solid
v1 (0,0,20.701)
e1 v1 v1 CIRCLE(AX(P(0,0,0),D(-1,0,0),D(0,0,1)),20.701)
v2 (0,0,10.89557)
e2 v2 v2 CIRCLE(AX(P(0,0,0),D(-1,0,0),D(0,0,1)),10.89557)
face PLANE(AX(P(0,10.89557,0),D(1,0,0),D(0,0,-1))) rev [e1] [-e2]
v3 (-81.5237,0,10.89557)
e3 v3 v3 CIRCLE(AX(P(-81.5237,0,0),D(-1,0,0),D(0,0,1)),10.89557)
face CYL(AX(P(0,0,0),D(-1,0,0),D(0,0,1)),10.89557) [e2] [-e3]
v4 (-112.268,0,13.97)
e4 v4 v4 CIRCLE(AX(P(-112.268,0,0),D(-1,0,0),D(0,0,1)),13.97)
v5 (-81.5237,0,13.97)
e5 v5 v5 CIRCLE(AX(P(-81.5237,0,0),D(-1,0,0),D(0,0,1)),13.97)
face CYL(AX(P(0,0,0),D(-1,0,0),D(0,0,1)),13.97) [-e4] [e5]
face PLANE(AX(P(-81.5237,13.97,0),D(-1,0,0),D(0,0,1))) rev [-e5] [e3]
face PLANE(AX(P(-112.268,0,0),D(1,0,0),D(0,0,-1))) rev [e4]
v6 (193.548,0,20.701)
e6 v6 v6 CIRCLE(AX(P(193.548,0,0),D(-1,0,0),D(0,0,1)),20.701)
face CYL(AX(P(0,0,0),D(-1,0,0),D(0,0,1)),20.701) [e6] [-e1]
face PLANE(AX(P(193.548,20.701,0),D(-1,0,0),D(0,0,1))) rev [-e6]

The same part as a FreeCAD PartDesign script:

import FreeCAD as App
import Part
import Sketcher
from FreeCAD import Vector
Q = App.Units.Quantity

doc = App.newDocument("Part")
body = doc.addObject("PartDesign::Body", "Body")

sketch1 = body.newObject("Sketcher::SketchObject", "Sketch")
sketch1.AttachmentSupport = (doc.getObject("XY_Plane"), [""])
sketch1.MapMode = "FlatFace"
sketch1.addGeometry([
    Part.LineSegment(Vector(-112.268, 0, 0), Vector(193.548, 0, 0)),
    Part.LineSegment(Vector(193.548, 0, 0), Vector(193.548, 20.701, 0)),
    Part.LineSegment(Vector(193.548, 20.701, 0), Vector(0, 20.701, 0)),
    Part.LineSegment(Vector(0, 20.701, 0), Vector(0, 10.89557, 0)),
    Part.LineSegment(Vector(0, 10.89557, 0), Vector(-81.5237, 10.89557, 0)),
    Part.LineSegment(Vector(-81.5237, 10.89557, 0), Vector(-81.5237, 13.97, 0)),
    Part.LineSegment(Vector(-81.5237, 13.97, 0), Vector(-112.268, 13.97, 0)),
    Part.LineSegment(Vector(-112.268, 13.97, 0), Vector(-112.268, 0, 0)),
], False)
sketch1.addConstraint([
    Sketcher.Constraint("Coincident", 0, 2, 1, 1),
    Sketcher.Constraint("Coincident", 1, 2, 2, 1),
    Sketcher.Constraint("Coincident", 2, 2, 3, 1),
    Sketcher.Constraint("Coincident", 3, 2, 4, 1),
    Sketcher.Constraint("Coincident", 4, 2, 5, 1),
    Sketcher.Constraint("Coincident", 5, 2, 6, 1),
    Sketcher.Constraint("Coincident", 6, 2, 7, 1),
    Sketcher.Constraint("Coincident", 7, 2, 0, 1),
    Sketcher.Constraint("Horizontal", 0),
    Sketcher.Constraint("Vertical", 1),
    Sketcher.Constraint("Horizontal", 2),
    Sketcher.Constraint("Vertical", 3),
    Sketcher.Constraint("Horizontal", 4),
    Sketcher.Constraint("Vertical", 5),
    Sketcher.Constraint("Horizontal", 6),
    Sketcher.Constraint("Vertical", 7),
    Sketcher.Constraint("PointOnObject", 0, 2, -1),
    Sketcher.Constraint("PointOnObject", 2, 2, -2),
    Sketcher.Constraint("DistanceX", 0, 1, 0, 2, Q("12.04 in")),
    Sketcher.Constraint("DistanceX", 2, 2, 2, 1, Q("7.62 in")),
    Sketcher.Constraint("DistanceY", 7, 2, 7, 1, Q("0.55 in")),
    Sketcher.Constraint("DistanceY", 1, 1, 1, 2, Q("0.815 in")),
    Sketcher.Constraint("DistanceX", 4, 2, 4, 1, Q("81.5237 mm")),
    Sketcher.Constraint("DistanceY", 3, 2, 3, 1, Q("9.80543 mm")),
])
revolution = body.newObject("PartDesign::Revolution", "Revolution")
revolution.Profile = sketch1
revolution.ReferenceAxis = (sketch1, ["H_Axis"])
revolution.Angle = 360

doc.recompute()
